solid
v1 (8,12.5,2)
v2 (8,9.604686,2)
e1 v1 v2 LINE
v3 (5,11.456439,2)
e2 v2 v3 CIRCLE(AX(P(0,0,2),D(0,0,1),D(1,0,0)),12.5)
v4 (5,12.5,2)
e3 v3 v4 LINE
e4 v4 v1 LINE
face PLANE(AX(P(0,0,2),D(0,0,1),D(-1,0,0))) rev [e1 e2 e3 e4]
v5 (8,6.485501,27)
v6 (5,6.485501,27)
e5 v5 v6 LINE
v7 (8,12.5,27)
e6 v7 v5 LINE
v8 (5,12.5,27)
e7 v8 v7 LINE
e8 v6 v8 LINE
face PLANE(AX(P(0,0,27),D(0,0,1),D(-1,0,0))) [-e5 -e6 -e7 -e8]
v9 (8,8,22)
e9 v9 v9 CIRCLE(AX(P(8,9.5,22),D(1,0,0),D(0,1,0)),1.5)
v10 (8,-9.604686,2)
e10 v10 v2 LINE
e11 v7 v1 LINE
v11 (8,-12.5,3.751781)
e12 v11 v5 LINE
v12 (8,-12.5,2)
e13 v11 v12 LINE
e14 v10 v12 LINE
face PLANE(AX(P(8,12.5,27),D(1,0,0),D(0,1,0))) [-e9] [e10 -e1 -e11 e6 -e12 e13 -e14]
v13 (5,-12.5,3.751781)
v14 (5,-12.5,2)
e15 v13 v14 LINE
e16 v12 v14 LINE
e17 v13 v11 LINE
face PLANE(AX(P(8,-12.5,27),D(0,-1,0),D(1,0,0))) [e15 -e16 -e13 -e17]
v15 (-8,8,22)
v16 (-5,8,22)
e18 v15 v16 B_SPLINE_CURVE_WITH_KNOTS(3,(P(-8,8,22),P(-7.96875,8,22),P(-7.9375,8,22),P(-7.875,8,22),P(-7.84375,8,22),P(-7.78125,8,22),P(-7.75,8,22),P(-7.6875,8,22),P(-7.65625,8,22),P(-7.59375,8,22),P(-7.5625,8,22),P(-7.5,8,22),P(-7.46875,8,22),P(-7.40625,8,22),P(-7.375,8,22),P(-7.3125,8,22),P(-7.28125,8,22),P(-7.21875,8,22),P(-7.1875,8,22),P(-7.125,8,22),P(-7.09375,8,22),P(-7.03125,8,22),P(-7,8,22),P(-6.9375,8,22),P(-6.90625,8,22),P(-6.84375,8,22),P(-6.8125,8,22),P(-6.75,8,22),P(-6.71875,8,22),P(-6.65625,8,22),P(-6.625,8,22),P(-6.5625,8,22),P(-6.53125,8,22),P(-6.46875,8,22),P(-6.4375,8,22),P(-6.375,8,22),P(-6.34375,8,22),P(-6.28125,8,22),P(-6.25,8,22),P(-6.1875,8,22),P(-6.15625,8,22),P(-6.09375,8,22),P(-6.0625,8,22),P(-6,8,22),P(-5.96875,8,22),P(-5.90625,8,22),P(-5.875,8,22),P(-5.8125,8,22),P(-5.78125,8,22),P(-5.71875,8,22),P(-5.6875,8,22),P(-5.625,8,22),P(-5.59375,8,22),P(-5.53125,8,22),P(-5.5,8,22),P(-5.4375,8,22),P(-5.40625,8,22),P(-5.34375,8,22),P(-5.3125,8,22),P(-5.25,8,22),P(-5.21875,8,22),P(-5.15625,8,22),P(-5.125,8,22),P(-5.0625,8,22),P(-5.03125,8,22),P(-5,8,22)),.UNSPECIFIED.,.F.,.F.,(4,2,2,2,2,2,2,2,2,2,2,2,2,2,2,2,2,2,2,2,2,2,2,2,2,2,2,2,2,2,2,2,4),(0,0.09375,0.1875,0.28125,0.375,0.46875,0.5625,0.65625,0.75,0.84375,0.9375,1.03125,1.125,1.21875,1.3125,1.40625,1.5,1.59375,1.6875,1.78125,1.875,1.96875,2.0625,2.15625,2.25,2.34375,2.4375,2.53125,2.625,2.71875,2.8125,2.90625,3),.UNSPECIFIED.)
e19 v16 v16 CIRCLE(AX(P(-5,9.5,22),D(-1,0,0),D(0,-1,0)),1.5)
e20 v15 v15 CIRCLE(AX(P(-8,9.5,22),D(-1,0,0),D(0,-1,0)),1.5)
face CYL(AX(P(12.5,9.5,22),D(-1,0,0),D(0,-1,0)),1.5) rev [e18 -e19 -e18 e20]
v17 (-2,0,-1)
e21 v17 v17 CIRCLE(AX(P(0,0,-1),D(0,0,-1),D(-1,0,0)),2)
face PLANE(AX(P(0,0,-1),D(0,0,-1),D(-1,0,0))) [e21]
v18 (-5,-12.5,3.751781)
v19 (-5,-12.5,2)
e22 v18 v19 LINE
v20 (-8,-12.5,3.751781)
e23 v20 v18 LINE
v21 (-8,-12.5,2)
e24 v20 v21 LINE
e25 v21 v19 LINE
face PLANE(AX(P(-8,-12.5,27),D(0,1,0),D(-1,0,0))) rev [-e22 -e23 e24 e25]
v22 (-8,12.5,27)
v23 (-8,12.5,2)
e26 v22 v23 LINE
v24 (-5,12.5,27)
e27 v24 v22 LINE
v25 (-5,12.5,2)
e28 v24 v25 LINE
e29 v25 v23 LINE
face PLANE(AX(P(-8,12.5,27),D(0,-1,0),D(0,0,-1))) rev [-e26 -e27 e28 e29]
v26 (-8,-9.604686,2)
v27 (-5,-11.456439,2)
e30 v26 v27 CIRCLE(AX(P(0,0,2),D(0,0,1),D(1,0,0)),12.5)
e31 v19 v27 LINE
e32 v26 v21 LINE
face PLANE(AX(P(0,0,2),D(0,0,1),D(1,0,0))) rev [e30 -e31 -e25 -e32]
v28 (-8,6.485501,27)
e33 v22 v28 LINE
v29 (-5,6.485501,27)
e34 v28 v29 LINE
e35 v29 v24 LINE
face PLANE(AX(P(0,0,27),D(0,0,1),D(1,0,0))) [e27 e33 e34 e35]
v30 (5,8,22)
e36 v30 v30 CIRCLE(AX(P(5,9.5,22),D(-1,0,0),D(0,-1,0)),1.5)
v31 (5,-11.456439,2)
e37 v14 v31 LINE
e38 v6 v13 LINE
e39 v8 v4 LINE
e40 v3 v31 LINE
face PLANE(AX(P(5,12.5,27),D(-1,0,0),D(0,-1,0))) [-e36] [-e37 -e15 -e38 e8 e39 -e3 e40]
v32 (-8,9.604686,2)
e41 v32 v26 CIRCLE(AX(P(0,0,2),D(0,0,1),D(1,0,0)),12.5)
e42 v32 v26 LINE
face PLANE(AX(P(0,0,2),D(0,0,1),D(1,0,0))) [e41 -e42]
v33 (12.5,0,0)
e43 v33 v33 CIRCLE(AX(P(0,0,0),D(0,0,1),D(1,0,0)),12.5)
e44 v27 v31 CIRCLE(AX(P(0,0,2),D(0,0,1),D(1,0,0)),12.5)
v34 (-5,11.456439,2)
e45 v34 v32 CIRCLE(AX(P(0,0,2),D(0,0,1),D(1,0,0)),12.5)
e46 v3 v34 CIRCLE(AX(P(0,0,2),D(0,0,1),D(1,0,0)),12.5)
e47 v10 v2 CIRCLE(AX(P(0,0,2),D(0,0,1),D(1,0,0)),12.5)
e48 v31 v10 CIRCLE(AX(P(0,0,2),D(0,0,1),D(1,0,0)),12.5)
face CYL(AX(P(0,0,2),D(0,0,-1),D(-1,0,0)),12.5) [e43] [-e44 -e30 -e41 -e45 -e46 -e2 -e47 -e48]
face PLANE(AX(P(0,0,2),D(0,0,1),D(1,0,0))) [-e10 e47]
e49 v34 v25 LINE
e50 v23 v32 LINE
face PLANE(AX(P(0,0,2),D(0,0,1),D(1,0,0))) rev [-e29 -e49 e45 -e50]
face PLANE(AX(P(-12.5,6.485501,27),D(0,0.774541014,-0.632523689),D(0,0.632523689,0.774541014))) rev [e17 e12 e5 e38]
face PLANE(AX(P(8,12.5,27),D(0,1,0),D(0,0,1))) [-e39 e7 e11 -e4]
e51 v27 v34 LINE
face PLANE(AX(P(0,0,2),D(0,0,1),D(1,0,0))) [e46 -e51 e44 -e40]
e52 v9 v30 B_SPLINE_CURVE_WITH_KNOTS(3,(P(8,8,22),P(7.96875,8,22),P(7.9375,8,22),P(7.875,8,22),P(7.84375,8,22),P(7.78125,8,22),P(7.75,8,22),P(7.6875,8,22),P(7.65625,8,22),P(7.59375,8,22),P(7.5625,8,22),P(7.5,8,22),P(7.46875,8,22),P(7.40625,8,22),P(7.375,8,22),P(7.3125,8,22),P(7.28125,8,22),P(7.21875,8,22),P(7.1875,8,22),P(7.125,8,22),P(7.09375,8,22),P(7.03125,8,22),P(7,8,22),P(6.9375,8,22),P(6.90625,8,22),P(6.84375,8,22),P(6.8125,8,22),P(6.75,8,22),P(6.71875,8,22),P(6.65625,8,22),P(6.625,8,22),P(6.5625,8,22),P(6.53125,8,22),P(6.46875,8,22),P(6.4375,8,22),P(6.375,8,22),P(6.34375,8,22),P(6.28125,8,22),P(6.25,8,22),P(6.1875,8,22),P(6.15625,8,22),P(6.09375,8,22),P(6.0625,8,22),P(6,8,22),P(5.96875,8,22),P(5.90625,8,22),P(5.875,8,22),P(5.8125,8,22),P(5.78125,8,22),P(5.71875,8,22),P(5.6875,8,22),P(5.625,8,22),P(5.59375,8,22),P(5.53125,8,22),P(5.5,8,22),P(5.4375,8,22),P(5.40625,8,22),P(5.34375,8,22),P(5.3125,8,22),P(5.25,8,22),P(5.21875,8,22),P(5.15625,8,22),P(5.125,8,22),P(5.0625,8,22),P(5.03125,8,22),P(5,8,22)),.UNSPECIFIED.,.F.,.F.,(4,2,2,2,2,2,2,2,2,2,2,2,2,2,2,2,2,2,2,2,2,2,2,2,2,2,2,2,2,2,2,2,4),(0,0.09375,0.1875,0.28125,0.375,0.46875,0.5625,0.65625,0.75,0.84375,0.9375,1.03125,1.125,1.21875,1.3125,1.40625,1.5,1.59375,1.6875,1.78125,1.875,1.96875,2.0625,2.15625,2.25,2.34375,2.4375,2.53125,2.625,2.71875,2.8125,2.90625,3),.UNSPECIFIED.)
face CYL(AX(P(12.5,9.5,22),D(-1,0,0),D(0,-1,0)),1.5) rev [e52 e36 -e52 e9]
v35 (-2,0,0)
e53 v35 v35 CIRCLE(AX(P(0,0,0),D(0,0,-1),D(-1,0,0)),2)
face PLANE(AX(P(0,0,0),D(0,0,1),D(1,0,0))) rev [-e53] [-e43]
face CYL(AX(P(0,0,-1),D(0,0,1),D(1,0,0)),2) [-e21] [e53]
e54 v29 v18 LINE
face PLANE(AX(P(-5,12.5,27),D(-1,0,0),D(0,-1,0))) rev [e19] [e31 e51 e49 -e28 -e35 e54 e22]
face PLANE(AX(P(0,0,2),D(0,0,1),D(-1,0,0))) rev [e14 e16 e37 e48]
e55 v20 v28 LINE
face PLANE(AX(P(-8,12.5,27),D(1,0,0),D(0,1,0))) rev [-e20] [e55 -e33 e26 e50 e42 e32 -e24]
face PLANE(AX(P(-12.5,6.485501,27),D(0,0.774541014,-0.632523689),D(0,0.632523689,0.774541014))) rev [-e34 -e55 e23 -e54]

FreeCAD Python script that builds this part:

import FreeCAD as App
import Part
import Sketcher
from FreeCAD import Vector
Q = App.Units.Quantity

doc = App.newDocument("Part")
body = doc.addObject("PartDesign::Body", "Body")

# Sketch on XY plane
sketch1 = body.newObject("Sketcher::SketchObject", "Sketch")
sketch1.AttachmentSupport = (doc.getObject("XY_Plane"), [""])
sketch1.MapMode = "FlatFace"
sketch1.addGeometry(Part.Circle(Vector(0, 0, 0), Vector(0, 0, 1), 12), False)
sketch1.addConstraint([
    Sketcher.Constraint("Coincident", 0, 3, -1, 1),
    Sketcher.Constraint("Diameter", 0, Q("25 mm")),
])
pad1 = body.newObject("PartDesign::Pad", "Pad")
pad1.Profile = sketch1
pad1.Length = 2

# Sketch on XY plane
sketch2 = body.newObject("Sketcher::SketchObject", "Sketch001")
sketch2.AttachmentSupport = (doc.getObject("XY_Plane"), [""])
sketch2.MapMode = "FlatFace"
sketch2.addGeometry(Part.Circle(Vector(0, 0, 0), Vector(0, 0, 1), 2), False)
sketch2.addConstraint([
    Sketcher.Constraint("Coincident", 0, 3, -1, 1),
    Sketcher.Constraint("Diameter", 0, Q("4 mm")),
])
pad2 = body.newObject("PartDesign::Pad", "Pad001")
pad2.Profile = sketch2
pad2.Length = 1
pad2.Reversed = True

# Sketch on XY plane
sketch3 = body.newObject("Sketcher::SketchObject", "Sketch002")
sketch3.AttachmentSupport = (doc.getObject("XY_Plane"), [""])
sketch3.MapMode = "FlatFace"
sketch3.AttachmentOffset = App.Placement(Vector(0, 0, 2), App.Rotation())
sketch3.addGeometry([
    Part.LineSegment(Vector(-8, 12.5, 0), Vector(-8, -12.5, 0)),
    Part.LineSegment(Vector(-8, -12.5, 0), Vector(-5, -12.5, 0)),
    Part.LineSegment(Vector(-5, -12.5, 0), Vector(-5, 12.5, 0)),
    Part.LineSegment(Vector(-5, 12.5, 0), Vector(-8, 12.5, 0)),
], False)
sketch3.addConstraint([
    Sketcher.Constraint("Coincident", 0, 2, 1, 1),
    Sketcher.Constraint("Coincident", 1, 2, 2, 1),
    Sketcher.Constraint("Coincident", 2, 2, 3, 1),
    Sketcher.Constraint("Coincident", 3, 2, 0, 1),
    Sketcher.Constraint("Vertical", 0),
    Sketcher.Constraint("Horizontal", 1),
    Sketcher.Constraint("Vertical", 2),
    Sketcher.Constraint("Horizontal", 3),
    Sketcher.Constraint("DistanceX", 1, 1, 1, 2, Q("3 mm")),
    Sketcher.Constraint("DistanceY", 0, 2, 0, 1, Q("25 mm")),
    Sketcher.Constraint("DistanceX", 0, 2, -1, 1, Q("8 mm")),
    Sketcher.Constraint("DistanceY", 0, 2, -1, 1, Q("12.5 mm")),
])
pad3 = body.newObject("PartDesign::Pad", "Pad002")
pad3.Profile = sketch3
pad3.Length = 25
doc.recompute()

mirrored = body.newObject("PartDesign::Mirrored", "Mirrored")
mirrored.Originals = [pad3]
mirrored.MirrorPlane = (doc.getObject("YZ_Plane"), [""])
body.Tip = mirrored

# Sketch on YZ plane
sketch4 = body.newObject("Sketcher::SketchObject", "Sketch003")
sketch4.AttachmentSupport = (doc.getObject("YZ_Plane"), [""])
sketch4.MapMode = "FlatFace"
sketch4.AttachmentOffset = App.Placement(Vector(0, 0, -8), App.Rotation())
sketch4.addGeometry(Part.Circle(Vector(9.5, 22, 0), Vector(0, 0, 1), 1.5), False)
sketch4.addConstraint([
    Sketcher.Constraint("Diameter", 0, Q("3 mm")),
    Sketcher.Constraint("DistanceY", -1, 1, 0, 3, Q("22 mm")),
    Sketcher.Constraint("DistanceX", -1, 1, 0, 3, Q("9.5 mm")),
])
pocket1 = body.newObject("PartDesign::Pocket", "Pocket")
pocket1.Profile = sketch4
pocket1.Type = "ThroughAll"
pocket1.Reversed = True

# Sketch on YZ plane
sketch5 = body.newObject("Sketcher::SketchObject", "Sketch004")
sketch5.AttachmentSupport = (doc.getObject("YZ_Plane"), [""])
sketch5.MapMode = "FlatFace"
sketch5.AttachmentOffset = App.Placement(Vector(0, 0, 8), App.Rotation())
sketch5.addGeometry([
    Part.LineSegment(Vector(-12, 4, 0), Vector(6, 27, 0)),
    Part.LineSegment(Vector(6, 27, 0), Vector(-12, 27, 0)),
    Part.LineSegment(Vector(-12, 27, 0), Vector(-12, 4, 0)),
], False)
sketch5.addConstraint([
    Sketcher.Constraint("Coincident", 0, 2, 1, 1),
    Sketcher.Constraint("Coincident", 1, 2, 2, 1),
    Sketcher.Constraint("Coincident", 2, 2, 0, 1),
    Sketcher.Constraint("Horizontal", 1),
    Sketcher.Constraint("Vertical", 2),
    Sketcher.Constraint("DistanceY", -1, 1, 0, 2, Q("27 mm")),
    Sketcher.Constraint("DistanceX", 1, 2, -1, 1, Q("12.5 mm")),
    Sketcher.Constraint("DistanceX", 1, 2, 1, 1, Q("18.985501 mm")),
    Sketcher.Constraint("DistanceY", 2, 2, 2, 1, Q("23.24822 mm")),
])
pocket2 = body.newObject("PartDesign::Pocket", "Pocket001")
pocket2.Profile = sketch5
pocket2.Type = "ThroughAll"

doc.recompute()
